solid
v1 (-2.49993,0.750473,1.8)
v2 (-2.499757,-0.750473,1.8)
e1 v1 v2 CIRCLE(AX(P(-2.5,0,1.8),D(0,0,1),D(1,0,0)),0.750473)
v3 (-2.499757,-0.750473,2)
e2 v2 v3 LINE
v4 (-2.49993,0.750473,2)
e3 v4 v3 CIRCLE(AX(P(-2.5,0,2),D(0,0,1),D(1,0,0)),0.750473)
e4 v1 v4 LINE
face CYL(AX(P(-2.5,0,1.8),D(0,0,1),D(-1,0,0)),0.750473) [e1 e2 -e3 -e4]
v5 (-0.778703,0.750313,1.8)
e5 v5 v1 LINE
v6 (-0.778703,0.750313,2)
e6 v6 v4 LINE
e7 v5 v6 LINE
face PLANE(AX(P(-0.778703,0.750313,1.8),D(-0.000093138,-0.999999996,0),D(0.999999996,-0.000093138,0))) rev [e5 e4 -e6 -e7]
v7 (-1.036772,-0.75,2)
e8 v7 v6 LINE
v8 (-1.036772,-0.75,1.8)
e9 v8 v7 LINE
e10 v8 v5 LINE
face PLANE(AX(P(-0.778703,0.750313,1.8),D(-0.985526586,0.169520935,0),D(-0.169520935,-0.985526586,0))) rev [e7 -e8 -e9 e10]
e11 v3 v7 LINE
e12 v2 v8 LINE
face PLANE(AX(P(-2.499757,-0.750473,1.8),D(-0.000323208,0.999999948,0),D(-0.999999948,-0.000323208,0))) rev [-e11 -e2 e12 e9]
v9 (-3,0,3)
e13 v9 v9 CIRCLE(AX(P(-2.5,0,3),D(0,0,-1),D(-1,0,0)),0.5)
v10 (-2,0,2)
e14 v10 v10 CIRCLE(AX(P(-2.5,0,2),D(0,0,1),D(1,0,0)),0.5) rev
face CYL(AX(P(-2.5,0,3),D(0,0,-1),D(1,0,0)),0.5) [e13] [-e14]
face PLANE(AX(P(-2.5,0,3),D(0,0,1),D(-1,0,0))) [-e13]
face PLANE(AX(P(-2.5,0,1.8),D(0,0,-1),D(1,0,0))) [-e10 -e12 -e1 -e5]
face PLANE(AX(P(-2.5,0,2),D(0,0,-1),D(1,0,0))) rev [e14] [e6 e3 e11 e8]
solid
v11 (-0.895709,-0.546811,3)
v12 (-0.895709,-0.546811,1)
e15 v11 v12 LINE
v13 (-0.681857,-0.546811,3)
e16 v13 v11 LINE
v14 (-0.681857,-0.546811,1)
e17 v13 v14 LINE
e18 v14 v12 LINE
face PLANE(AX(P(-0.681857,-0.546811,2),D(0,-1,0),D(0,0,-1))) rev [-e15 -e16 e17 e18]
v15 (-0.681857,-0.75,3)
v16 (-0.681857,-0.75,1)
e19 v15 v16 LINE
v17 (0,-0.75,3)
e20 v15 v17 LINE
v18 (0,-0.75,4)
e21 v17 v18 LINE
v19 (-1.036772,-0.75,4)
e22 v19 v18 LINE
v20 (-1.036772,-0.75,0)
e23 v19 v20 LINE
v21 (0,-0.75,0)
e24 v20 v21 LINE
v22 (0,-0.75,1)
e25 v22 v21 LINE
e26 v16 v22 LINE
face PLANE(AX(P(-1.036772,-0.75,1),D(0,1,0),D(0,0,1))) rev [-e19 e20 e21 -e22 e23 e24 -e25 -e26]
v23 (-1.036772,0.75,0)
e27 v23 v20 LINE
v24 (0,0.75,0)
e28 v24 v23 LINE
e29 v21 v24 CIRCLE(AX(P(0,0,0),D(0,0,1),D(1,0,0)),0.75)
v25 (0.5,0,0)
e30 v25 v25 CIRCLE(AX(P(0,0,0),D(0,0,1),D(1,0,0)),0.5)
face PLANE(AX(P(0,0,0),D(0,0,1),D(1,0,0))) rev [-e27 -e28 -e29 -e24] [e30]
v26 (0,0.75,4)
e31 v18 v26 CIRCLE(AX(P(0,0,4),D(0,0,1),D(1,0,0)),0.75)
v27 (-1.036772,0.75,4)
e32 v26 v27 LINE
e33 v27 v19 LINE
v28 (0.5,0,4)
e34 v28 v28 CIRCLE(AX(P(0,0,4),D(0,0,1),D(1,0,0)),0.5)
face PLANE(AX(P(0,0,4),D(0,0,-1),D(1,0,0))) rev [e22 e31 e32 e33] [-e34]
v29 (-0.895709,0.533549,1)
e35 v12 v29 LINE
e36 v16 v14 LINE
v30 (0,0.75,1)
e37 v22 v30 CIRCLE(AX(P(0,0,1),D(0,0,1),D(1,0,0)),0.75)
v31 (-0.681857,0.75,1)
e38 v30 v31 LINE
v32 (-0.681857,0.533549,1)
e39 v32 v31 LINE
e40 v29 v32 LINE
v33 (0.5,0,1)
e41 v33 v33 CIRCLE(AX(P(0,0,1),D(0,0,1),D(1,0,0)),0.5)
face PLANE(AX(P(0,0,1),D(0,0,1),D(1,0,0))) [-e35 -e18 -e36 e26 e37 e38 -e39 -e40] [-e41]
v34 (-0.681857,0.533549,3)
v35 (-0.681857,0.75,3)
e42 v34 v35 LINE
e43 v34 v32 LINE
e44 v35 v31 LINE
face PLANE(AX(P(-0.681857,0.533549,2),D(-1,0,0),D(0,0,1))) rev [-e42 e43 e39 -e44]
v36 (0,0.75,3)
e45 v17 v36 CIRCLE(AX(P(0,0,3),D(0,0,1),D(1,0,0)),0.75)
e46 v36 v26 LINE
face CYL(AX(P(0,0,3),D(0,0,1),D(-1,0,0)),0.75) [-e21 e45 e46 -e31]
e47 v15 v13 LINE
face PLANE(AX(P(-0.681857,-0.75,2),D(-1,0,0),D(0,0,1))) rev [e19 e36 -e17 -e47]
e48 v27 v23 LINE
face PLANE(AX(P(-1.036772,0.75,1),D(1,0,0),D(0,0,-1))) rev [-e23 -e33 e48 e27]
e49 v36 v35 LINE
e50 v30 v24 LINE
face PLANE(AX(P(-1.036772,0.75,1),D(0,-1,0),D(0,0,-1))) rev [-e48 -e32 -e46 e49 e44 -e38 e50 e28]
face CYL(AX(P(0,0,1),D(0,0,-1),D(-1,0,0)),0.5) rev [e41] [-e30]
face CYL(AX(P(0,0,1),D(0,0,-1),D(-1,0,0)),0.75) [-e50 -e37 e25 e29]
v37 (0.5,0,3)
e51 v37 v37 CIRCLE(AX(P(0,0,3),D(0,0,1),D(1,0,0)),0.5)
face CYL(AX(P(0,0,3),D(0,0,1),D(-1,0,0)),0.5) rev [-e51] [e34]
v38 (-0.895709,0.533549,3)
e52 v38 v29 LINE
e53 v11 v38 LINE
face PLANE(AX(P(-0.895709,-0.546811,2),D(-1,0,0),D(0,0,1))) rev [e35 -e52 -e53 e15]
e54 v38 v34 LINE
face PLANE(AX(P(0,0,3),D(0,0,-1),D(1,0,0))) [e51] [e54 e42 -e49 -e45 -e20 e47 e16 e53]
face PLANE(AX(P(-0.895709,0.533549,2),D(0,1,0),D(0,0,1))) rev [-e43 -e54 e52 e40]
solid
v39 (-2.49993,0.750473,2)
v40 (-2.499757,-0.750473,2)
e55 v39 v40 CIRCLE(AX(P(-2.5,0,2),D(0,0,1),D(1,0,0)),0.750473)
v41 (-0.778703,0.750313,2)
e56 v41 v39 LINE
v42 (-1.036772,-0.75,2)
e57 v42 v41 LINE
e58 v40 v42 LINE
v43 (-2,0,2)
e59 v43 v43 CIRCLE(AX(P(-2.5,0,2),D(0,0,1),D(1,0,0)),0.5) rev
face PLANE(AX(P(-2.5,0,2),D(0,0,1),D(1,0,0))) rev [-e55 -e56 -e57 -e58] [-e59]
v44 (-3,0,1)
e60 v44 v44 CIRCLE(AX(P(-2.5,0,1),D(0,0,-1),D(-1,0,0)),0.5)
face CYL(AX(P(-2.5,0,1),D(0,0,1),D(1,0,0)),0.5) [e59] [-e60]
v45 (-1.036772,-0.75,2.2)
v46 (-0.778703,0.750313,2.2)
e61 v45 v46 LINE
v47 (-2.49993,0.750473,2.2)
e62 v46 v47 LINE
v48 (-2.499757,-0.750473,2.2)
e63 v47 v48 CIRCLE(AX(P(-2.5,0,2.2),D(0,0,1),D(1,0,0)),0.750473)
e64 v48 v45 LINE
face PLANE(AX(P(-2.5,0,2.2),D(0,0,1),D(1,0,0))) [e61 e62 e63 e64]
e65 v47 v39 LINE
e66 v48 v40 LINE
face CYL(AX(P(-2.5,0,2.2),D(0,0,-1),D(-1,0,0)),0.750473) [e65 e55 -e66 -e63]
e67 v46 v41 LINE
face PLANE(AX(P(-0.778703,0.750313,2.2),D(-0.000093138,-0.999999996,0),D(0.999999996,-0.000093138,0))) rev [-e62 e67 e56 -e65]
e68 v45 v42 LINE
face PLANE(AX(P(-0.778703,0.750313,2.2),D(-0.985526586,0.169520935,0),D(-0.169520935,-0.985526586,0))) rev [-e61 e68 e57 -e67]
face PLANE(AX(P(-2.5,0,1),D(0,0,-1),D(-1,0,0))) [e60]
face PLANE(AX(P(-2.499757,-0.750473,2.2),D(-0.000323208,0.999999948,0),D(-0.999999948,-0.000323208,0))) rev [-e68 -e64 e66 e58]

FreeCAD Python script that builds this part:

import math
import FreeCAD as App
import Part
import Sketcher

V = App.Vector

doc = App.newDocument("Part")
body = doc.addObject("PartDesign::Body", "Body")

# Sketch on XY plane
sketch1 = doc.addObject("Sketcher::SketchObject", "Sketch")
body.addObject(sketch1)
sketch1.AttachmentSupport = (doc.XY_Plane, [""])
sketch1.MapMode = "FlatFace"
sketch1.addGeometry([
    Part.LineSegment(V(0, 0.75, 0), V(-1.036772, 0.75, 0)),  # 0
    Part.LineSegment(V(-1.036772, 0.75, 0), V(-1.036772, -0.75, 0)),  # 1
    Part.LineSegment(V(-1.036772, -0.75, 0), V(0, -0.75, 0)),  # 2
    Part.ArcOfCircle(Part.Circle(V(0, 0, 0), V(0, 0, 1), 0.75), math.radians(-90), math.radians(90)),  # 3
    Part.Circle(V(0, 0, 0), V(0, 0, 1), 0.5),  # 4
], False)
sketch1.addConstraint([
    Sketcher.Constraint("Coincident", 0, 2, 1, 1),
    Sketcher.Constraint("Coincident", 1, 2, 2, 1),
    Sketcher.Constraint("Tangent", 2, 2, 3, 1),
    Sketcher.Constraint("Tangent", 3, 2, 0, 1),
    Sketcher.Constraint("Horizontal", 0),
    Sketcher.Constraint("Vertical", 1),
    Sketcher.Constraint("Horizontal", 2),
    Sketcher.Constraint("Coincident", 3, 3, -1, 1),
    Sketcher.Constraint("Coincident", 4, 3, -1, 1),
    Sketcher.Constraint("Diameter", 4, 1.0),
    Sketcher.Constraint("Radius", 3, 0.75),
    Sketcher.Constraint("DistanceX", 0, 2, 0, 1, 1.036772),
])
pad1 = doc.addObject("PartDesign::Pad", "Pad")
body.addObject(pad1)
pad1.Profile = sketch1
pad1.Length = 1

# Sketch on XY plane
sketch2 = doc.addObject("Sketcher::SketchObject", "Sketch001")
body.addObject(sketch2)
sketch2.AttachmentSupport = (doc.XY_Plane, [""])
sketch2.MapMode = "FlatFace"
sketch2.AttachmentOffset = App.Placement(V(0, 0, 1), App.Rotation())
sketch2.addGeometry([
    Part.LineSegment(V(-0.681857, 0.75, 0), V(-1.036772, 0.75, 0)),  # 0
    Part.LineSegment(V(-1.036772, 0.75, 0), V(-1.036772, -0.75, 0)),  # 1
    Part.LineSegment(V(-1.036772, -0.75, 0), V(-0.681857, -0.75, 0)),  # 2
    Part.LineSegment(V(-0.681857, -0.75, 0), V(-0.681857, -0.546811, 0)),  # 3
    Part.LineSegment(V(-0.681857, -0.546811, 0), V(-0.895709, -0.546811, 0)),  # 4
    Part.LineSegment(V(-0.895709, -0.546811, 0), V(-0.895709, 0.533549, 0)),  # 5
    Part.LineSegment(V(-0.895709, 0.533549, 0), V(-0.681857, 0.533549, 0)),  # 6
    Part.LineSegment(V(-0.681857, 0.533549, 0), V(-0.681857, 0.75, 0)),  # 7
], False)
sketch2.addConstraint([
    Sketcher.Constraint("Coincident", 0, 2, 1, 1),
    Sketcher.Constraint("Coincident", 1, 2, 2, 1),
    Sketcher.Constraint("Coincident", 2, 2, 3, 1),
    Sketcher.Constraint("Coincident", 3, 2, 4, 1),
    Sketcher.Constraint("Coincident", 4, 2, 5, 1),
    Sketcher.Constraint("Coincident", 5, 2, 6, 1),
    Sketcher.Constraint("Coincident", 6, 2, 7, 1),
    Sketcher.Constraint("Coincident", 7, 2, 0, 1),
    Sketcher.Constraint("Horizontal", 0),
    Sketcher.Constraint("Vertical", 1),
    Sketcher.Constraint("Horizontal", 2),
    Sketcher.Constraint("Vertical", 3),
    Sketcher.Constraint("Horizontal", 4),
    Sketcher.Constraint("Vertical", 5),
    Sketcher.Constraint("Horizontal", 6),
    Sketcher.Constraint("Vertical", 7),
    Sketcher.Constraint("Symmetric", 2, 2, 7, 2, -1),
    Sketcher.Constraint("DistanceY", 1, 2, 1, 1, 1.5),
    Sketcher.Constraint("DistanceY", 3, 1, 3, 2, 0.203189),
    Sketcher.Constraint("DistanceY", 5, 1, 5, 2, 1.08036),
    Sketcher.Constraint("DistanceX", 0, 2, 0, 1, 0.354915),
    Sketcher.Constraint("DistanceX", 4, 2, 4, 1, 0.213852),
    Sketcher.Constraint("DistanceX", 4, 2, -1, 1, 0.895709),
])
pad2 = doc.addObject("PartDesign::Pad", "Pad001")
body.addObject(pad2)
pad2.Profile = sketch2
pad2.Length = 1
body2 = doc.addObject("PartDesign::Body", "Body001")
doc.recompute()

body2.BaseFeature = body
doc.recompute()

mirroring = doc.addObject("Part::Mirroring", "Mirroring")
mirroring.Source = body
mirroring.Base = V(0, 0, 2)
mirroring.Normal = V(0, 0, 1)
body3 = doc.addObject("PartDesign::Body", "Body002")
body3.BaseFeature = mirroring
boolean = doc.addObject("PartDesign::Boolean", "Boolean")
body2.addObject(boolean)
boolean.Type = "Fuse"
boolean.addObjects([body3])
doc.recompute()
body4 = doc.addObject("PartDesign::Body", "Body003")

# Sketch on XY plane
sketch3 = doc.addObject("Sketcher::SketchObject", "Sketch002")
body4.addObject(sketch3)
sketch3.AttachmentSupport = (doc.getObject("XY_Plane003"), [""])
sketch3.MapMode = "FlatFace"
sketch3.AttachmentOffset = App.Placement(V(0, 0, 2), App.Rotation())
sketch3.addGeometry([
    Part.LineSegment(V(-0.778703, 0.750313, 0), V(-2.49993, 0.750473, 0)),
    Part.ArcOfCircle(Part.Circle(V(-2.5, 0, 0), V(0, 0, 1), 0.750473), math.radians(89.994664), math.radians(270.018518)),
    Part.LineSegment(V(-2.499757, -0.750473, 0), V(-1.036772, -0.75, 0)),
    Part.LineSegment(V(-1.036772, -0.75, 0), V(-0.778703, 0.750313, 0)),
], False)
sketch3.addConstraint([
    Sketcher.Constraint("Tangent", 0, 2, 1, 1),
    Sketcher.Constraint("Tangent", 1, 2, 2, 1),
    Sketcher.Constraint("Coincident", 2, 2, 3, 1),
    Sketcher.Constraint("Coincident", 3, 2, 0, 1),
    Sketcher.Constraint("PointOnObject", 1, 3, -1),
    Sketcher.Constraint("DistanceX", 1, 3, -1, 1, 2.5),
    Sketcher.Constraint("DistanceY", 2, 2, -1, 1, 0.75),
    Sketcher.Constraint("Radius", 1, 0.750473),
    Sketcher.Constraint("DistanceX", 0, 2, -1, 1, 2.49993),
    Sketcher.Constraint("DistanceX", 2, 2, 3, 2, 0.25807),
    Sketcher.Constraint("Distance", 0, 1.721227),
])
pad3 = doc.addObject("PartDesign::Pad", "Pad002")
body4.addObject(pad3)
pad3.Profile = sketch3
pad3.Length = 0.2

# Sketch on XY plane
sketch4 = doc.addObject("Sketcher::SketchObject", "Sketch003")
body4.addObject(sketch4)
sketch4.AttachmentSupport = (doc.getObject("XY_Plane003"), [""])
sketch4.MapMode = "FlatFace"
sketch4.AttachmentOffset = App.Placement(V(0, 0, 2), App.Rotation())
sketch4.addGeometry(Part.Circle(V(-2.5, 0, 0), V(0, 0, 1), 0.5), False)
sketch4.addConstraint([
    Sketcher.Constraint("PointOnObject", 0, 3, -1),
    Sketcher.Constraint("Diameter", 0, 1.0),
    Sketcher.Constraint("DistanceX", 0, 3, -1, 1, 2.5),
])
pad4 = doc.addObject("PartDesign::Pad", "Pad003")
body4.addObject(pad4)
pad4.Profile = sketch4
pad4.Length = 1
pad4.Reversed = True
body5 = doc.addObject("PartDesign::Body", "Body004")
doc.recompute()

mirroring2 = doc.addObject("Part::Mirroring", "Mirroring001")
mirroring2.Source = body4
mirroring2.Base = V(0, 0, 2)
mirroring2.Normal = V(0, 0, 1)
body5.BaseFeature = mirroring2
doc.recompute()
mirroring.Visibility = False
mirroring2.Visibility = False

doc.recompute()
